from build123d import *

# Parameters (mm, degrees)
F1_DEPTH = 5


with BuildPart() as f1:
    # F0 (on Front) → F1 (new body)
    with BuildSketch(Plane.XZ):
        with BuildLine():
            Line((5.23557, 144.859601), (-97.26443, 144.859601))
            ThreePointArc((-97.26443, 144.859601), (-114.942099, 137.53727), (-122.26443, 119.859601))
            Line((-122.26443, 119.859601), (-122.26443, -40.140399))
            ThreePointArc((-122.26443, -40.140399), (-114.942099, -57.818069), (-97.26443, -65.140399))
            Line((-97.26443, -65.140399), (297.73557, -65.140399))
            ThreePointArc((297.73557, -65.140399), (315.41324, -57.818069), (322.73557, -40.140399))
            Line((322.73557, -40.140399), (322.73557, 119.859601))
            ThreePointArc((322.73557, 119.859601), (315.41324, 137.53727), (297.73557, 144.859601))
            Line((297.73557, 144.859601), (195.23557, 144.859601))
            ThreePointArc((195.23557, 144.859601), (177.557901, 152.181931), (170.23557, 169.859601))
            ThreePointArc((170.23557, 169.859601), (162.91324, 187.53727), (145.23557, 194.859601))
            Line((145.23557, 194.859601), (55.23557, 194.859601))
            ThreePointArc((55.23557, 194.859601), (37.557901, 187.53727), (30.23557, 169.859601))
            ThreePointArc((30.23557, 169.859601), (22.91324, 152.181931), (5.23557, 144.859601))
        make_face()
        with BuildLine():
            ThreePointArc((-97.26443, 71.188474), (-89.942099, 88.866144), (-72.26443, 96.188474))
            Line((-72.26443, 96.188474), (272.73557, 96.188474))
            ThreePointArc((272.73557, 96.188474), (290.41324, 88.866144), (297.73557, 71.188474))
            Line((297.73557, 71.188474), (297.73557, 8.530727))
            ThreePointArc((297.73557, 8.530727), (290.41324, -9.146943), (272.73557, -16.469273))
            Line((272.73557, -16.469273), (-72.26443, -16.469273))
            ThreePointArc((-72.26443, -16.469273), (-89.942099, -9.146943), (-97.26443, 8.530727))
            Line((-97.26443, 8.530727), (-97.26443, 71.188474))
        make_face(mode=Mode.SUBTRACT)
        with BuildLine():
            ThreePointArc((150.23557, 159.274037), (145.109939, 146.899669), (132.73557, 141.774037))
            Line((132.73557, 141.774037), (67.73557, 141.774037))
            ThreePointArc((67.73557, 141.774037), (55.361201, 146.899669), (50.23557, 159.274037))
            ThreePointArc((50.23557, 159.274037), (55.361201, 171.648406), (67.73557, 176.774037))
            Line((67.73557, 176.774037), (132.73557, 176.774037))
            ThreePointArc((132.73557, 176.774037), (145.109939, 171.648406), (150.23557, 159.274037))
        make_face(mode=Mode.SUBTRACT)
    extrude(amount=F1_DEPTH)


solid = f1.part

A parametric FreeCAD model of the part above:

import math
import FreeCAD as App
import Part
import Sketcher
Q = App.Units.Quantity

doc = App.newDocument("Part")
params = doc.addObject("Spreadsheet::Sheet", "Params")
for row, (alias, value) in enumerate([
    ("sketch1_radius", "25.000002 mm"),
    ("sketch1_radius2", "17.499999 mm"),
    ("sketch1_width", "395 mm"),
    ("sketch1_width2", "90 mm"),
    ("sketch1_width3", "65 mm"),
    ("pad1_length", "5 mm"),
], start=1):
    params.set(f"A{row}", alias)
    params.set(f"B{row}", "=" + value)
    params.setAlias(f"B{row}", alias)

body = doc.addObject("PartDesign::Body", "Body")

# Sketch on XZ plane
sketch1 = body.newObject("Sketcher::SketchObject", "Sketch")
sketch1.AttachmentSupport = (doc.getObject("XZ_Plane"), [""])
sketch1.MapMode = "FlatFace"
sketch1.addGeometry(Part.LineSegment(App.Vector(5, 145, 0), App.Vector(-97, 145, 0)), False)
sketch1.addGeometry(Part.ArcOfCircle(Part.Circle(App.Vector(-97, 120, 0), App.Vector(0, 0, 1), 25), math.radians(90), math.radians(180)), False)
sketch1.addGeometry(Part.LineSegment(App.Vector(-122, 120, 0), App.Vector(-122, -40, 0)), False)
sketch1.addGeometry(Part.ArcOfCircle(Part.Circle(App.Vector(-97, -40, 0), App.Vector(0, 0, 1), 25), math.radians(-180), math.radians(-90)), False)
sketch1.addGeometry(Part.LineSegment(App.Vector(-97, -65, 0), App.Vector(298, -65, 0)), False)
sketch1.addGeometry(Part.ArcOfCircle(Part.Circle(App.Vector(298, -40, 0), App.Vector(0, 0, 1), 25), math.radians(-90), math.radians(0)), False)
sketch1.addGeometry(Part.LineSegment(App.Vector(323, -40, 0), App.Vector(323, 120, 0)), False)
sketch1.addGeometry(Part.ArcOfCircle(Part.Circle(App.Vector(298, 120, 0), App.Vector(0, 0, 1), 25), math.radians(0), math.radians(90)), False)
sketch1.addGeometry(Part.LineSegment(App.Vector(298, 145, 0), App.Vector(195, 145, 0)), False)
sketch1.addGeometry(Part.ArcOfCircle(Part.Circle(App.Vector(195, 170, 0), App.Vector(0, 0, 1), 25), math.radians(-180), math.radians(-90)), False)
sketch1.addGeometry(Part.ArcOfCircle(Part.Circle(App.Vector(145, 170, 0), App.Vector(0, 0, 1), 25), math.radians(0), math.radians(90)), False)
sketch1.addGeometry(Part.LineSegment(App.Vector(145, 195, 0), App.Vector(55, 195, 0)), False)
sketch1.addGeometry(Part.ArcOfCircle(Part.Circle(App.Vector(55, 170, 0), App.Vector(0, 0, 1), 25), math.radians(90), math.radians(180)), False)
sketch1.addGeometry(Part.ArcOfCircle(Part.Circle(App.Vector(5, 170, 0), App.Vector(0, 0, 1), 25), math.radians(-90), math.radians(0)), False)
sketch1.addGeometry(Part.LineSegment(App.Vector(-97, 9, 0), App.Vector(-97, 71, 0)), False)
sketch1.addGeometry(Part.ArcOfCircle(Part.Circle(App.Vector(-72, 71, 0), App.Vector(0, 0, 1), 25), math.radians(90), math.radians(180)), False)
sketch1.addGeometry(Part.LineSegment(App.Vector(-72, 96, 0), App.Vector(273, 96, 0)), False)
sketch1.addGeometry(Part.ArcOfCircle(Part.Circle(App.Vector(273, 71, 0), App.Vector(0, 0, 1), 25), math.radians(0), math.radians(90)), False)
sketch1.addGeometry(Part.LineSegment(App.Vector(298, 71, 0), App.Vector(298, 9, 0)), False)
sketch1.addGeometry(Part.ArcOfCircle(Part.Circle(App.Vector(273, 9, 0), App.Vector(0, 0, 1), 25), math.radians(-90), math.radians(0)), False)
sketch1.addGeometry(Part.LineSegment(App.Vector(273, -16, 0), App.Vector(-72, -16, 0)), False)
sketch1.addGeometry(Part.ArcOfCircle(Part.Circle(App.Vector(-72, 9, 0), App.Vector(0, 0, 1), 25), math.radians(-180), math.radians(-90)), False)
sketch1.addGeometry(Part.ArcOfCircle(Part.Circle(App.Vector(133, 159, 0), App.Vector(0, 0, 1), 17), math.radians(0), math.radians(90)), False)
sketch1.addGeometry(Part.ArcOfCircle(Part.Circle(App.Vector(133, 159, 0), App.Vector(0, 0, 1), 18), math.radians(-90), math.radians(0)), False)
sketch1.addGeometry(Part.LineSegment(App.Vector(133, 142, 0), App.Vector(68, 142, 0)), False)
sketch1.addGeometry(Part.ArcOfCircle(Part.Circle(App.Vector(68, 159, 0), App.Vector(0, 0, 1), 18), math.radians(-180), math.radians(-90)), False)
sketch1.addGeometry(Part.ArcOfCircle(Part.Circle(App.Vector(68, 159, 0), App.Vector(0, 0, 1), 17), math.radians(90), math.radians(180)), False)
sketch1.addGeometry(Part.LineSegment(App.Vector(68, 177, 0), App.Vector(133, 177, 0)), False)
sketch1.addConstraint(Sketcher.Constraint("Tangent", 0, 2, 1, 1))
sketch1.addConstraint(Sketcher.Constraint("Tangent", 1, 2, 2, 1))
sketch1.addConstraint(Sketcher.Constraint("Tangent", 2, 2, 3, 1))
sketch1.addConstraint(Sketcher.Constraint("Tangent", 3, 2, 4, 1))
sketch1.addConstraint(Sketcher.Constraint("Tangent", 4, 2, 5, 1))
sketch1.addConstraint(Sketcher.Constraint("Tangent", 5, 2, 6, 1))
sketch1.addConstraint(Sketcher.Constraint("Tangent", 6, 2, 7, 1))
sketch1.addConstraint(Sketcher.Constraint("Tangent", 7, 2, 8, 1))
sketch1.addConstraint(Sketcher.Constraint("Tangent", 8, 2, 9, 2))
sketch1.addConstraint(Sketcher.Constraint("Tangent", 9, 1, 10, 1))
sketch1.addConstraint(Sketcher.Constraint("Tangent", 10, 2, 11, 1))
sketch1.addConstraint(Sketcher.Constraint("Tangent", 11, 2, 12, 1))
sketch1.addConstraint(Sketcher.Constraint("Tangent", 12, 2, 13, 2))
sketch1.addConstraint(Sketcher.Constraint("Tangent", 13, 1, 0, 1))
sketch1.addConstraint(Sketcher.Constraint("Tangent", 14, 2, 15, 2))
sketch1.addConstraint(Sketcher.Constraint("Tangent", 15, 1, 16, 1))
sketch1.addConstraint(Sketcher.Constraint("Tangent", 16, 2, 17, 2))
sketch1.addConstraint(Sketcher.Constraint("Tangent", 17, 1, 18, 1))
sketch1.addConstraint(Sketcher.Constraint("Tangent", 18, 2, 19, 2))
sketch1.addConstraint(Sketcher.Constraint("Tangent", 19, 1, 20, 1))
sketch1.addConstraint(Sketcher.Constraint("Tangent", 20, 2, 21, 2))
sketch1.addConstraint(Sketcher.Constraint("Tangent", 21, 1, 14, 1))
sketch1.addConstraint(Sketcher.Constraint("Tangent", 22, 1, 23, 2))
sketch1.addConstraint(Sketcher.Constraint("Tangent", 23, 1, 24, 1))
sketch1.addConstraint(Sketcher.Constraint("Tangent", 24, 2, 25, 2))
sketch1.addConstraint(Sketcher.Constraint("Tangent", 25, 1, 26, 2))
sketch1.addConstraint(Sketcher.Constraint("Tangent", 26, 1, 27, 1))
sketch1.addConstraint(Sketcher.Constraint("Tangent", 27, 2, 22, 2))
sketch1.addConstraint(Sketcher.Constraint("Horizontal", 0))
sketch1.addConstraint(Sketcher.Constraint("Vertical", 2))
sketch1.addConstraint(Sketcher.Constraint("Horizontal", 4))
sketch1.addConstraint(Sketcher.Constraint("Vertical", 6))
sketch1.addConstraint(Sketcher.Constraint("Horizontal", 8))
sketch1.addConstraint(Sketcher.Constraint("Horizontal", 11))
sketch1.addConstraint(Sketcher.Constraint("Vertical", 14))
sketch1.addConstraint(Sketcher.Constraint("Horizontal", 16))
sketch1.addConstraint(Sketcher.Constraint("Vertical", 18))
sketch1.addConstraint(Sketcher.Constraint("Horizontal", 20))
sketch1.addConstraint(Sketcher.Constraint("Horizontal", 24))
sketch1.addConstraint(Sketcher.Constraint("Horizontal", 27))
sketch1.addConstraint(Sketcher.Constraint("Equal", 1, 3))
sketch1.addConstraint(Sketcher.Constraint("Equal", 3, 5))
sketch1.addConstraint(Sketcher.Constraint("Equal", 5, 7))
sketch1.addConstraint(Sketcher.Constraint("Equal", 7, 9))
sketch1.addConstraint(Sketcher.Constraint("Equal", 9, 10))
sketch1.addConstraint(Sketcher.Constraint("Equal", 10, 12))
sketch1.addConstraint(Sketcher.Constraint("Equal", 10, 13))
sketch1.addConstraint(Sketcher.Constraint("Equal", 13, 15))
sketch1.addConstraint(Sketcher.Constraint("Equal", 15, 17))
sketch1.addConstraint(Sketcher.Constraint("Equal", 17, 19))
sketch1.addConstraint(Sketcher.Constraint("Equal", 19, 21))
sketch1.addConstraint(Sketcher.Constraint("Equal", 22, 23))
sketch1.addConstraint(Sketcher.Constraint("Equal", 23, 25))
sketch1.addConstraint(Sketcher.Constraint("Horizontal", 1, 3, 7, 3))
sketch1.addConstraint(Sketcher.Constraint("Horizontal", 9, 3, 10, 3))
sketch1.addConstraint(Sketcher.Constraint("Horizontal", 26, 3, 22, 1))
sketch1.addConstraint(Sketcher.Constraint("Horizontal", 22, 1, 25, 1))
sketch1.addConstraint(Sketcher.Constraint("Vertical", 3, 2, 14, 2))
sketch1.addConstraint(Sketcher.Constraint("Vertical", 7, 2, 17, 1))
sketch1.addConstraint(Sketcher.Constraint("Equal", 0, 8))
sketch1.addConstraint(Sketcher.Constraint("Radius", 1, Q("25.000002 mm")))
sketch1.addConstraint(Sketcher.Constraint("Radius", 22, Q("17.499999 mm")))
sketch1.addConstraint(Sketcher.Constraint("DistanceX", 4, 1, 4, 2, Q("395 mm")))
sketch1.addConstraint(Sketcher.Constraint("DistanceX", 11, 2, 11, 1, Q("90 mm")))
sketch1.addConstraint(Sketcher.Constraint("DistanceX", 24, 2, 24, 1, Q("65 mm")))
sketch1.addConstraint(Sketcher.Constraint("DistanceY", 2, 2, 2, 1, Q("160 mm")))
sketch1.addConstraint(Sketcher.Constraint("DistanceX", 22, 3, 17, 3, Q("140 mm")))
sketch1.addConstraint(Sketcher.Constraint("DistanceY", -1, 1, 1, 3, Q("119.859599 mm")))
sketch1.addConstraint(Sketcher.Constraint("DistanceY", 14, 1, 14, 2, Q("62.657747 mm")))
sketch1.addConstraint(Sketcher.Constraint("DistanceX", 1, 3, -1, 1, Q("97.264428 mm")))
sketch1.addConstraint(Sketcher.Constraint("DistanceY", -1, 1, 22, 3, Q("159.274038 mm")))
sketch1.addConstraint(Sketcher.Constraint("DistanceY", -1, 1, 15, 3, Q("71.188474 mm")))
sketch1.setExpression("Constraints[60]", "Params.sketch1_radius")
sketch1.setExpression("Constraints[61]", "Params.sketch1_radius2")
sketch1.setExpression("Constraints[62]", "Params.sketch1_width")
sketch1.setExpression("Constraints[63]", "Params.sketch1_width2")
sketch1.setExpression("Constraints[64]", "Params.sketch1_width3")
pad1 = body.newObject("PartDesign::Pad", "Pad")
pad1.Profile = sketch1
pad1.setExpression("Length", "Params.pad1_length")

doc.recompute()
